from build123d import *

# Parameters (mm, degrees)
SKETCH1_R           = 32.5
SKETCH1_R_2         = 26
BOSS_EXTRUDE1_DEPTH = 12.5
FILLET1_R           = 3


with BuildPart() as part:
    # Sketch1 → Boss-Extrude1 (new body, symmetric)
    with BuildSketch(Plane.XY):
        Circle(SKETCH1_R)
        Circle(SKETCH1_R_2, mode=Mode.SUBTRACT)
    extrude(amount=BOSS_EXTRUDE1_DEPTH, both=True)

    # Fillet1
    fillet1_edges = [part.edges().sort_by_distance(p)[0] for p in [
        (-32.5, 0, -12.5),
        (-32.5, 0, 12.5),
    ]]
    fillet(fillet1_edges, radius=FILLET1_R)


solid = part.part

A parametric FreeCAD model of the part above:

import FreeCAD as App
import Part
import Sketcher
Q = App.Units.Quantity


def edges_at(feature, points):
    """Names of the edges that pass closest to the given points."""
    edges = feature.Shape.Edges
    near = lambda p: min(range(len(edges)), key=lambda i: edges[i].distToShape(Part.Vertex(*p))[0])
    return sorted({f"Edge{near(p) + 1}" for p in points})

doc = App.newDocument("Part")
body = doc.addObject("PartDesign::Body", "Body")

sketch1 = doc.addObject("Sketcher::SketchObject", "Sketch")
body.addObject(sketch1)
sketch1.AttachmentSupport = (doc.XY_Plane, [""])
sketch1.MapMode = "FlatFace"
sketch1.addGeometry([
    Part.Circle(App.Vector(0, 0, 0), App.Vector(0, 0, 1), 32),
    Part.Circle(App.Vector(0, 0, 0), App.Vector(0, 0, 1), 26),
], False)
sketch1.addConstraint([
    Sketcher.Constraint("Coincident", 0, 3, -1, 1),
    Sketcher.Constraint("Coincident", 1, 3, -1, 1),
    Sketcher.Constraint("Diameter", 0, Q("65 mm")),
    Sketcher.Constraint("Diameter", 1, Q("52 mm")),
])
pad1 = doc.addObject("PartDesign::Pad", "Pad")
body.addObject(pad1)
pad1.Profile = sketch1
pad1.Length = 25
pad1.Midplane = True
doc.recompute()

fillet = doc.addObject("PartDesign::Fillet", "Fillet")
body.addObject(fillet)
fillet.Base = (pad1, edges_at(pad1, [(-32.5, 0, -12.5), (-32.5, 0, 12.5)]))
fillet.Radius = 3

doc.recompute()
